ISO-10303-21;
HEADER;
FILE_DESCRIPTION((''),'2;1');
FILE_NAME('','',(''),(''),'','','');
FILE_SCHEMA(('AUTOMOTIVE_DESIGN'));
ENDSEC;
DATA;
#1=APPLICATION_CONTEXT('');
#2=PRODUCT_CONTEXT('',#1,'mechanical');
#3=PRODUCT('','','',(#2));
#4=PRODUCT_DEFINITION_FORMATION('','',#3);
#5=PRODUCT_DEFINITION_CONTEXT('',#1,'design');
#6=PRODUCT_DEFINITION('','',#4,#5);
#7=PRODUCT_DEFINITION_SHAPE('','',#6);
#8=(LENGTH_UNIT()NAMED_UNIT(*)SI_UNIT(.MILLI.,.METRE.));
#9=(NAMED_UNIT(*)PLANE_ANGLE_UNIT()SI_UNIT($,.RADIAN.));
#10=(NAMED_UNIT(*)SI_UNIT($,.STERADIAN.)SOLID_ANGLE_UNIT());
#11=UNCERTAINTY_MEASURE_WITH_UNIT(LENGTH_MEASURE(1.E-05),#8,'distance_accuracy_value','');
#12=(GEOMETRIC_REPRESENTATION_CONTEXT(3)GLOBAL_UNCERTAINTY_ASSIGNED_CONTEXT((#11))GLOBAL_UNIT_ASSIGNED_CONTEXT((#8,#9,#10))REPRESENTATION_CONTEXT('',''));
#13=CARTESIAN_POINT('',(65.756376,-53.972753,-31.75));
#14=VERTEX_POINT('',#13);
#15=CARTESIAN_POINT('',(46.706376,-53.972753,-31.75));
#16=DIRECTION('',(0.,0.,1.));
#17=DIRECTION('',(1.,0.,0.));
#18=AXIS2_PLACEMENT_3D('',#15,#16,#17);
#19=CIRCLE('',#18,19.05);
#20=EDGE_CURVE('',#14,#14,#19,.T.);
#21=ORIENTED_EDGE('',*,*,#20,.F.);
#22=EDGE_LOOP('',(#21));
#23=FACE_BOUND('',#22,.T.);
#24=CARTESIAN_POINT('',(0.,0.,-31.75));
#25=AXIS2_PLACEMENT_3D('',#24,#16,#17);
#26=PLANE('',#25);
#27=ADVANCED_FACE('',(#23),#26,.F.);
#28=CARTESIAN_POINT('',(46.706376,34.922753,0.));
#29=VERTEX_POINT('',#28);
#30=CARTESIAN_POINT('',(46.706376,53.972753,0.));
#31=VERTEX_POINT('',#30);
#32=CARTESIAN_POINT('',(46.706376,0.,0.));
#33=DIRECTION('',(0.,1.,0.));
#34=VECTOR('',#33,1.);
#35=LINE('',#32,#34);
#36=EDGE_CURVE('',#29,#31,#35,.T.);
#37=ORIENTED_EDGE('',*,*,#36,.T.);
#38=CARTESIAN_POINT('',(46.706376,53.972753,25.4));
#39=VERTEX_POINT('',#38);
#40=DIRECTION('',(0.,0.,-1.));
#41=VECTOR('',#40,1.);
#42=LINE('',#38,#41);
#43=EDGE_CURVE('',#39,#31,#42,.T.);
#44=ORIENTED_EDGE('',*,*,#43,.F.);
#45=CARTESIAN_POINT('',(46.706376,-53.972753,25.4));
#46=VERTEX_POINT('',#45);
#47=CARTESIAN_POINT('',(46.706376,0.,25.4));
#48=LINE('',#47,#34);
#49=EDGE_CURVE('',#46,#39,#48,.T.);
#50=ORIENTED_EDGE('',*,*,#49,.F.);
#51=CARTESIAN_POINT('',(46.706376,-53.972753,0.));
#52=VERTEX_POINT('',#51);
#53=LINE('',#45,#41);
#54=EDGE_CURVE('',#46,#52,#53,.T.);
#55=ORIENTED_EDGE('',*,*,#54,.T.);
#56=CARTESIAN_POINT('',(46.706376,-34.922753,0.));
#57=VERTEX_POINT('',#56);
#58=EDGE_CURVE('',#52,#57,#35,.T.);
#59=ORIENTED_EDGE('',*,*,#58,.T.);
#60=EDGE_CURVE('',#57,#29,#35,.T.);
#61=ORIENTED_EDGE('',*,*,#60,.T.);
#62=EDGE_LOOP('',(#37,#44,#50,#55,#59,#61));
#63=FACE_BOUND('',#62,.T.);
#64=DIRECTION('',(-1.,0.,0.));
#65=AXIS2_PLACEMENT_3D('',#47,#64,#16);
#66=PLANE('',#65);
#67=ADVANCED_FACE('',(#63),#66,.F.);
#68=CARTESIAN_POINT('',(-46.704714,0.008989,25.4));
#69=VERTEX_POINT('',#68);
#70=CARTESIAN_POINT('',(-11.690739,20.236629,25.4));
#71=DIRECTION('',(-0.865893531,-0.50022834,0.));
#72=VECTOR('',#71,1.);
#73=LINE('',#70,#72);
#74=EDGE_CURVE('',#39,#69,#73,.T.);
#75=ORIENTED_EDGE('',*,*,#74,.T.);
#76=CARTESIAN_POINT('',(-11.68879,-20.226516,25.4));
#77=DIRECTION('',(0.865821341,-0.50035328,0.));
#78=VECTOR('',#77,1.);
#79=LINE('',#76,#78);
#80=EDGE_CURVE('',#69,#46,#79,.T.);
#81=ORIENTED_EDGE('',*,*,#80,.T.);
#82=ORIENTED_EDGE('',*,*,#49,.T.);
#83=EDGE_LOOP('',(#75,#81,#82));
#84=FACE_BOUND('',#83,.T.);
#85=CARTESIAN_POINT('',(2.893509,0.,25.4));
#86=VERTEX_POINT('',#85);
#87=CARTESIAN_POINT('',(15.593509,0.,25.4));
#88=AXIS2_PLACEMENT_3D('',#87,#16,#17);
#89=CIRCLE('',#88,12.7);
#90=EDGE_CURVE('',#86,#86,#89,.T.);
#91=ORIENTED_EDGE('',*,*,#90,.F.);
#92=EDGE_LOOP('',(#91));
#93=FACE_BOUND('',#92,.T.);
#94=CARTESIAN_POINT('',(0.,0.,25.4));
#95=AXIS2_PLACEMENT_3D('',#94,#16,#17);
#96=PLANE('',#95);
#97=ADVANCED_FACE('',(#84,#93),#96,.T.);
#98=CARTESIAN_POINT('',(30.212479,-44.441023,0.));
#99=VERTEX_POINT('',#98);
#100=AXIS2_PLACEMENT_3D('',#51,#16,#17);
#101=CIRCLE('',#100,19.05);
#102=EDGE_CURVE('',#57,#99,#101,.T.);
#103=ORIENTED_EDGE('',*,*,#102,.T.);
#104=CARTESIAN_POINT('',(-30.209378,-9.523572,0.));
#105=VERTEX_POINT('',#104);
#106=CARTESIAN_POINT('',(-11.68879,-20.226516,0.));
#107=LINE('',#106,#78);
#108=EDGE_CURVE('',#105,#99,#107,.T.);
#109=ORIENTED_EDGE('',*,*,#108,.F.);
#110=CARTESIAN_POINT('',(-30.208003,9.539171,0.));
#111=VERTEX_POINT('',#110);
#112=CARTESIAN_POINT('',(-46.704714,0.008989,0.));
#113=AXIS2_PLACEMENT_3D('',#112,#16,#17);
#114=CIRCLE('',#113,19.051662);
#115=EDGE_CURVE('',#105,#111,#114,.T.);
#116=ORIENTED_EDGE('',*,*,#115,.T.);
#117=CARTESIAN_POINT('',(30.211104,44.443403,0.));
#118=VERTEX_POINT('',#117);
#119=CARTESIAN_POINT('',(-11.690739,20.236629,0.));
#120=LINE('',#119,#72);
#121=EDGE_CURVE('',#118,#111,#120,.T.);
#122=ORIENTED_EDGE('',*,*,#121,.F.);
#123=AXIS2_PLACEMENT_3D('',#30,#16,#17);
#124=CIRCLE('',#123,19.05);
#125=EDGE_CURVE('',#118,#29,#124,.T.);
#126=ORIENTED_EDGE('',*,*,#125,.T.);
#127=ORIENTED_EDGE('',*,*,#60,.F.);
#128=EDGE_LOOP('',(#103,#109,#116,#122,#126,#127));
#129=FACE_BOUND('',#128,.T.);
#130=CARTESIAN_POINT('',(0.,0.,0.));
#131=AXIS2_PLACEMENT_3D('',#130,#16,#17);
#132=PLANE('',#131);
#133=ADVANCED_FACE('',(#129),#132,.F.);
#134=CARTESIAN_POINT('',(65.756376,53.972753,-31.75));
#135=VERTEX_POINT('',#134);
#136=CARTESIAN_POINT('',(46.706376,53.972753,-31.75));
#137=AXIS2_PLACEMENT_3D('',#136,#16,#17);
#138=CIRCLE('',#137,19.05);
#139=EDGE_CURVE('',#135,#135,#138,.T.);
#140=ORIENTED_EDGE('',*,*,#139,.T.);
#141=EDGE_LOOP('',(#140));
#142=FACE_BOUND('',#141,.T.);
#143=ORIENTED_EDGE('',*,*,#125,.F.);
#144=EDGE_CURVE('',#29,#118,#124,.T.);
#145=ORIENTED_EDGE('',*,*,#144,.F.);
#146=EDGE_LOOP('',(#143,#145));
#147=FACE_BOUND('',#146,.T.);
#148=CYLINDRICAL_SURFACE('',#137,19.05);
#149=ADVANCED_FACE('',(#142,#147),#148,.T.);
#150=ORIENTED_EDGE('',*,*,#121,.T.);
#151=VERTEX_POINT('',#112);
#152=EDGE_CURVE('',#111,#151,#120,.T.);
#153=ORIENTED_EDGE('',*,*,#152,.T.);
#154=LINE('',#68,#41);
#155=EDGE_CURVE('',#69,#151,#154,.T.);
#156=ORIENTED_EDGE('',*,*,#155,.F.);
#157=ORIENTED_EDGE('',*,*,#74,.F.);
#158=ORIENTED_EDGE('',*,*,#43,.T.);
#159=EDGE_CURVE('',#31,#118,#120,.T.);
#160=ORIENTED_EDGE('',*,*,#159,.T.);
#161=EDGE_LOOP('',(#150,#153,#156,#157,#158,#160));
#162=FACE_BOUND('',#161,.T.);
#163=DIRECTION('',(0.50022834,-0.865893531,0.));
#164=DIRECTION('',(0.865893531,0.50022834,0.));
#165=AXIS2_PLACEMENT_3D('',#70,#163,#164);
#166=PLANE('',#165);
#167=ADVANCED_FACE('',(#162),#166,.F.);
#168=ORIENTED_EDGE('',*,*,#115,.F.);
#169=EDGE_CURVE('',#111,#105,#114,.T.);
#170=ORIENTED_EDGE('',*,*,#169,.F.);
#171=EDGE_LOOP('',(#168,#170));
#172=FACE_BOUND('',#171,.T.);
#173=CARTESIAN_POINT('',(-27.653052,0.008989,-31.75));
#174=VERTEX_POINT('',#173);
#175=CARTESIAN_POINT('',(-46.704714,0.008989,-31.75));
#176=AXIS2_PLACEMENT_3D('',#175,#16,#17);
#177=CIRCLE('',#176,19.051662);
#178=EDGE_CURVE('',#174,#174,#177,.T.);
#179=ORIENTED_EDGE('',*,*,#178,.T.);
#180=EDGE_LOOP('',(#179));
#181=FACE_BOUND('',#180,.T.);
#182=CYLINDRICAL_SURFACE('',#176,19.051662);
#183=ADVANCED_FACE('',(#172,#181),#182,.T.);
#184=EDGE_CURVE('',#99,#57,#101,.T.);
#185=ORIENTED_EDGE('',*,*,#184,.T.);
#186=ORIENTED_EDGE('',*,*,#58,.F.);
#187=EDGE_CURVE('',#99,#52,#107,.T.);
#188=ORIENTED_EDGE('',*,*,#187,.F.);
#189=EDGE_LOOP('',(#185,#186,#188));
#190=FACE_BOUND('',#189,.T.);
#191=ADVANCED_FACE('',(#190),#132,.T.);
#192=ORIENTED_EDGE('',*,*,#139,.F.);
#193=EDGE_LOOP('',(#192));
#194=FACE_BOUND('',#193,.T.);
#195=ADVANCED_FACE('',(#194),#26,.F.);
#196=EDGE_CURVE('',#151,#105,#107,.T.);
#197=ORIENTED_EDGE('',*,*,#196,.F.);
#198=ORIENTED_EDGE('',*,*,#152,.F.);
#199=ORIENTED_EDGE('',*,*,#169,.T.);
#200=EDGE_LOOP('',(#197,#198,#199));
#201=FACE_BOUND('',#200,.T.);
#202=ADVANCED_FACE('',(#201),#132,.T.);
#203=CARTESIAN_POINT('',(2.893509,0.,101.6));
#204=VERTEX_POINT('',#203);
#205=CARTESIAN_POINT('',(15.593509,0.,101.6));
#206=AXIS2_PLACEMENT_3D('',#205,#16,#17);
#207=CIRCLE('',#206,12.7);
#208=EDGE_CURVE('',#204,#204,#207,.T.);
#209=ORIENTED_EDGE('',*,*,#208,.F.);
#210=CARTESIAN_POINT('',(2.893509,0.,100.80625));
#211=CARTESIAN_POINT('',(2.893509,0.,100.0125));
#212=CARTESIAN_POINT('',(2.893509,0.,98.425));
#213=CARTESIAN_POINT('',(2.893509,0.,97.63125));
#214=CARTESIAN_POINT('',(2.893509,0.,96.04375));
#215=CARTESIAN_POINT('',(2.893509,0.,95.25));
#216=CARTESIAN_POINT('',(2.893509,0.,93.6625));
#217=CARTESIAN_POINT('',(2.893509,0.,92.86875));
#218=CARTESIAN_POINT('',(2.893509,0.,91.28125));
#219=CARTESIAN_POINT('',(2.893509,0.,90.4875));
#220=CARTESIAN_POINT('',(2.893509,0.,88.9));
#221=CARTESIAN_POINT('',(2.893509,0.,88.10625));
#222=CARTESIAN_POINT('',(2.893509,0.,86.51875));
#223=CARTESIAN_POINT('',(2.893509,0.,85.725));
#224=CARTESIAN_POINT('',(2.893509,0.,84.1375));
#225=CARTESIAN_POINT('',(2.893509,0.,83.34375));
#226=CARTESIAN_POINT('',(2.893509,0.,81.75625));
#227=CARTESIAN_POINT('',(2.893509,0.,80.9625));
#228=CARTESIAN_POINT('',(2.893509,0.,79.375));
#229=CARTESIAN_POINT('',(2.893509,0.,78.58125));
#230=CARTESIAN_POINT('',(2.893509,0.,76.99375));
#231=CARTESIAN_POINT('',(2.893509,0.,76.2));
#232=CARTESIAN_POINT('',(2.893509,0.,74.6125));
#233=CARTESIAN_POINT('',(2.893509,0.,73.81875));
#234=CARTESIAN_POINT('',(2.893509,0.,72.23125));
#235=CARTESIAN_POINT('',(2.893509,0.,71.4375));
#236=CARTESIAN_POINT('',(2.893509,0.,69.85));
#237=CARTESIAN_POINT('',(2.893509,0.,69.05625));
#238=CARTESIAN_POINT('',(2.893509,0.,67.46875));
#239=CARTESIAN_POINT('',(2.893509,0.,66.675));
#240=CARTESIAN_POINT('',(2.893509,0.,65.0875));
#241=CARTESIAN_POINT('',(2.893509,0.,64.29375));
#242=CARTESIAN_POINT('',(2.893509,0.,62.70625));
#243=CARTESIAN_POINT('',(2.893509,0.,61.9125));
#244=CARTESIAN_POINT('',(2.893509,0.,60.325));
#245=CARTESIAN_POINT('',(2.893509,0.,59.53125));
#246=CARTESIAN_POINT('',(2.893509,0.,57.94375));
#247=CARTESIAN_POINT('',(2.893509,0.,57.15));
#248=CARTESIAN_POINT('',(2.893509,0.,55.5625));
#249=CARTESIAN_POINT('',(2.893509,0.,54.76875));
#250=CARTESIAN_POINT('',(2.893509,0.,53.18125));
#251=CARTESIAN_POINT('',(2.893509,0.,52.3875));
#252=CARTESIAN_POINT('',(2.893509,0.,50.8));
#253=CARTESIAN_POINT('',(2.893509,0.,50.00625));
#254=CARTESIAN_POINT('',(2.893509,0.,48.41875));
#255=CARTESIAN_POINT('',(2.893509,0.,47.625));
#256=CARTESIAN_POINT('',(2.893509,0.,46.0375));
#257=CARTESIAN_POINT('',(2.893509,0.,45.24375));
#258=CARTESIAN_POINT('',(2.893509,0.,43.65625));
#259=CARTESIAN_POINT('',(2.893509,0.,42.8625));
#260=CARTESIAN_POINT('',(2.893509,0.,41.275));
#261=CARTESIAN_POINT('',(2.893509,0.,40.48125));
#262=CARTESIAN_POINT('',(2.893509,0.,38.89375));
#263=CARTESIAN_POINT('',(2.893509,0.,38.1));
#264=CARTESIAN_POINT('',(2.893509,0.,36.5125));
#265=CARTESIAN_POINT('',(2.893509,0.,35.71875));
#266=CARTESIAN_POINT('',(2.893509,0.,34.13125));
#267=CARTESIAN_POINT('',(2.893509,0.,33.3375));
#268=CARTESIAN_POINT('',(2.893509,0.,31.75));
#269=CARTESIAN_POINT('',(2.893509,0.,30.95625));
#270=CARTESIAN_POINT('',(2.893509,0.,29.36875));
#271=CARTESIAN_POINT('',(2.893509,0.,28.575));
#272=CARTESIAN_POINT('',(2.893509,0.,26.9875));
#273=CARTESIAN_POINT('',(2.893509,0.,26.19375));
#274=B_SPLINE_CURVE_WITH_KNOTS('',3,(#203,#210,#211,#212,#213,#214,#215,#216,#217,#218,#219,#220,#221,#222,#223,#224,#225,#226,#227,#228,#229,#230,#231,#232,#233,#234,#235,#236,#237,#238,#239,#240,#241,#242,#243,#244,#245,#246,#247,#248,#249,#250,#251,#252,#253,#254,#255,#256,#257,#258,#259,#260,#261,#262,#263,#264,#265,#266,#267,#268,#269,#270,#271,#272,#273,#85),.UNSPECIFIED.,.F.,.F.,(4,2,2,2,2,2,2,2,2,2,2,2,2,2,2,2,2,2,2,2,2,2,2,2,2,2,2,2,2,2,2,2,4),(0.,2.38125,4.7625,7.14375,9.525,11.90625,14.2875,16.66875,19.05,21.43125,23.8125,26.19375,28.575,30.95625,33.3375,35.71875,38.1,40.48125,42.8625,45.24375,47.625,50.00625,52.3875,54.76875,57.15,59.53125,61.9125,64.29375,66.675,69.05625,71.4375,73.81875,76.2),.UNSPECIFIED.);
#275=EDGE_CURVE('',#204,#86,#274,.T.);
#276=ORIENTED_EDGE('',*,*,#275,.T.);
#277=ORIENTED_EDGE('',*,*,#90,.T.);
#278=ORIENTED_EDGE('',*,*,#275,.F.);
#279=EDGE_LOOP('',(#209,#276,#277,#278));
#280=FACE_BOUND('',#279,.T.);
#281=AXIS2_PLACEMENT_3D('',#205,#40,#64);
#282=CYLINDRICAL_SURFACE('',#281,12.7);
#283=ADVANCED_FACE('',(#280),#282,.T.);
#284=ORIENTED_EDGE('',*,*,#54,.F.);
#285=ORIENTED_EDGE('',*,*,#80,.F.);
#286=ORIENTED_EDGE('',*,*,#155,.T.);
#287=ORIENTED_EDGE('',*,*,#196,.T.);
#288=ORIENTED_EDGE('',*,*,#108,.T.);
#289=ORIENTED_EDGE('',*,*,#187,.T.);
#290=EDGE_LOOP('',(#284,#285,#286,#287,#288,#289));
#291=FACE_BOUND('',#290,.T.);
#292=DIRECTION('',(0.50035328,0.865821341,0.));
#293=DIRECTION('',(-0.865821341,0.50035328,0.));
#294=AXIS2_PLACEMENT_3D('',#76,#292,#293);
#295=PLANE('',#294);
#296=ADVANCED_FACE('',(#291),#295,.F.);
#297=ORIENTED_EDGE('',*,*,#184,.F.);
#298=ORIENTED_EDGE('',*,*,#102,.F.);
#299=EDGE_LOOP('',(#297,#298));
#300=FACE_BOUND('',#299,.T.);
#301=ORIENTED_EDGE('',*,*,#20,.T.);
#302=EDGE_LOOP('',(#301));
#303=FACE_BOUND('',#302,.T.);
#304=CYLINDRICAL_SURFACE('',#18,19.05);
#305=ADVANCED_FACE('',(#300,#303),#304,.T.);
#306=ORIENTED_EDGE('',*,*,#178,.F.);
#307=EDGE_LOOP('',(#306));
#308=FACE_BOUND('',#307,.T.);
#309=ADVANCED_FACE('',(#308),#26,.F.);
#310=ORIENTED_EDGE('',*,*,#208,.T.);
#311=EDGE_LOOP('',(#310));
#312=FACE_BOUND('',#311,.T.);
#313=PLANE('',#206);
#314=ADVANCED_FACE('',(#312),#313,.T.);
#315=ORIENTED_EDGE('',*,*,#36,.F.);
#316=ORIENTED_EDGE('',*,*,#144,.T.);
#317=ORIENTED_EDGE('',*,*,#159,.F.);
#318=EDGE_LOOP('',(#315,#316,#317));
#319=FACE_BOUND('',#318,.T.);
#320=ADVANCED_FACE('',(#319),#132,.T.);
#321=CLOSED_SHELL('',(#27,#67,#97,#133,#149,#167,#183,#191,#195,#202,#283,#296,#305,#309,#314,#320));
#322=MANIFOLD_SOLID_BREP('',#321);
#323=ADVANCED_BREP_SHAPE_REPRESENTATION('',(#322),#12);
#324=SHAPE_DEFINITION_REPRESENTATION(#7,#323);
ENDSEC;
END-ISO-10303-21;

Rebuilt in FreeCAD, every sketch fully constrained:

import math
import FreeCAD as App
import Part
import Sketcher
from FreeCAD import Vector
Q = App.Units.Quantity


def add_polygon(sketch, points):
    """Adds a closed chain of lines whose ends are joined by coincident constraints."""
    first, n = sketch.GeometryCount, len(points)
    for a, b in zip(points, points[1:] + points[:1]):
        sketch.addGeometry(Part.LineSegment(App.Vector(*a, 0), App.Vector(*b, 0)), False)
    for i in range(n):
        sketch.addConstraint(Sketcher.Constraint("Coincident", first + i, 2, first + (i + 1) % n, 1))

doc = App.newDocument("Part")
body = doc.addObject("PartDesign::Body", "Body")
body.AllowCompound = True

sketch1 = body.newObject("Sketcher::SketchObject", "Sketch")
sketch1.AttachmentSupport = (doc.getObject("XY_Plane"), [""])
sketch1.MapMode = "FlatFace"
sketch1.addGeometry([
    Part.ArcOfCircle(Part.Circle(Vector(-47, 0, 0), Vector(0, 0, 1), 19), math.radians(-30), math.radians(0)),
    Part.ArcOfCircle(Part.Circle(Vector(-47, 0, 0), Vector(0, 0, 1), 19), math.radians(0), math.radians(30)),
    Part.ArcOfCircle(Part.Circle(Vector(-47, 0, 0), Vector(0, 0, 1), 19), math.radians(30), math.radians(330)),
    Part.ArcOfCircle(Part.Circle(Vector(47, 54, 0), Vector(0, 0, 1), 19), math.radians(0), math.radians(210)),
    Part.ArcOfCircle(Part.Circle(Vector(47, 54, 0), Vector(0, 0, 1), 19), math.radians(-150), math.radians(-90)),
    Part.ArcOfCircle(Part.Circle(Vector(47, 54, 0), Vector(0, 0, 1), 19), math.radians(-90), math.radians(0)),
    Part.ArcOfCircle(Part.Circle(Vector(47, -54, 0), Vector(0, 0, 1), 19), math.radians(90), math.radians(150)),
    Part.ArcOfCircle(Part.Circle(Vector(47, -54, 0), Vector(0, 0, 1), 19), math.radians(150), math.radians(360)),
    Part.ArcOfCircle(Part.Circle(Vector(47, -54, 0), Vector(0, 0, 1), 19), math.radians(0), math.radians(90)),
], False)
sketch1.addConstraint([
    Sketcher.Constraint("Tangent", 0, 2, 1, 1),
    Sketcher.Constraint("Tangent", 1, 2, 2, 1),
    Sketcher.Constraint("Tangent", 2, 2, 0, 1),
    Sketcher.Constraint("Tangent", 3, 2, 4, 1),
    Sketcher.Constraint("Tangent", 4, 2, 5, 1),
    Sketcher.Constraint("Tangent", 5, 2, 3, 1),
    Sketcher.Constraint("Tangent", 6, 2, 7, 1),
    Sketcher.Constraint("Tangent", 7, 2, 8, 1),
    Sketcher.Constraint("Tangent", 8, 2, 6, 1),
    Sketcher.Constraint("Equal", 5, 6),
    Sketcher.Constraint("Symmetric", 3, 3, 6, 3, -1),
    Sketcher.Constraint("Horizontal", 2, 3, 0, 2),
    Sketcher.Constraint("Horizontal", 4, 3, 5, 2),
    Sketcher.Constraint("Horizontal", 8, 3, 7, 2),
    Sketcher.Constraint("Vertical", 8, 3, 4, 2),
    Sketcher.Constraint("Vertical", 4, 2, 8, 2),
    Sketcher.Constraint("Radius", 3, Q("0.75 in")),
    Sketcher.Constraint("Radius", 0, 19.051662),
    Sketcher.Constraint("DistanceY", -1, 1, 0, 3, 0.008989),
    Sketcher.Constraint("DistanceX", 0, 2, -1, 1, 27.653052),
    Sketcher.Constraint("DistanceY", -1, 1, 1, 2, 9.539171),
    Sketcher.Constraint("DistanceX", 2, 2, -1, 1, 30.209378),
    Sketcher.Constraint("DistanceX", -1, 1, 6, 2, 30.212479),
    Sketcher.Constraint("DistanceX", 0, 3, 3, 3, 93.411089),
    Sketcher.Constraint("DistanceX", 3, 2, 3, 3, 16.495272),
    Sketcher.Constraint("DistanceY", 6, 2, 2, 2, 34.917451),
])
pad1 = body.newObject("PartDesign::Pad", "Pad")
pad1.Profile = sketch1
pad1.Length = Q("1.25 in")
pad1.Reversed = True

sketch2 = body.newObject("Sketcher::SketchObject", "Sketch001")
sketch2.AttachmentSupport = (doc.getObject("XY_Plane"), [""])
sketch2.MapMode = "FlatFace"
add_polygon(sketch2, [(-47, 0), (47, -54), (47, 54)])
sketch2.addConstraint([
    Sketcher.Constraint("Vertical", 1),
    Sketcher.Constraint("DistanceY", 1, 1, 1, 2, 107.945507),
    Sketcher.Constraint("DistanceY", -1, 1, 2, 2, 0.008989),
    Sketcher.Constraint("DistanceX", 2, 2, 1, 2, 93.411089),
    Sketcher.Constraint("Distance", 0, 107.887257),
    Sketcher.Constraint("DistanceX", -1, 1, 0, 2, 46.706376),
])
pad2 = body.newObject("PartDesign::Pad", "Pad001")
pad2.Profile = sketch2
pad2.Length = Q("1 in")

sketch3 = body.newObject("Sketcher::SketchObject", "Sketch002")
sketch3.AttachmentSupport = (doc.getObject("XY_Plane"), [""])
sketch3.MapMode = "FlatFace"
sketch3.AttachmentOffset = App.Placement(Vector(0, 0, 1 * 25.4), App.Rotation())
sketch3.addGeometry(Part.Circle(Vector(16, 0, 0), Vector(0, 0, 1), 13), False)
sketch3.addConstraint([
    Sketcher.Constraint("PointOnObject", 0, 3, -1),
    Sketcher.Constraint("Diameter", 0, Q("1 in")),
    Sketcher.Constraint("DistanceX", -1, 1, 0, 3, 15.593509),
])
pad3 = body.newObject("PartDesign::Pad", "Pad002")
pad3.Profile = sketch3
pad3.Length = Q("3 in")

doc.recompute()
